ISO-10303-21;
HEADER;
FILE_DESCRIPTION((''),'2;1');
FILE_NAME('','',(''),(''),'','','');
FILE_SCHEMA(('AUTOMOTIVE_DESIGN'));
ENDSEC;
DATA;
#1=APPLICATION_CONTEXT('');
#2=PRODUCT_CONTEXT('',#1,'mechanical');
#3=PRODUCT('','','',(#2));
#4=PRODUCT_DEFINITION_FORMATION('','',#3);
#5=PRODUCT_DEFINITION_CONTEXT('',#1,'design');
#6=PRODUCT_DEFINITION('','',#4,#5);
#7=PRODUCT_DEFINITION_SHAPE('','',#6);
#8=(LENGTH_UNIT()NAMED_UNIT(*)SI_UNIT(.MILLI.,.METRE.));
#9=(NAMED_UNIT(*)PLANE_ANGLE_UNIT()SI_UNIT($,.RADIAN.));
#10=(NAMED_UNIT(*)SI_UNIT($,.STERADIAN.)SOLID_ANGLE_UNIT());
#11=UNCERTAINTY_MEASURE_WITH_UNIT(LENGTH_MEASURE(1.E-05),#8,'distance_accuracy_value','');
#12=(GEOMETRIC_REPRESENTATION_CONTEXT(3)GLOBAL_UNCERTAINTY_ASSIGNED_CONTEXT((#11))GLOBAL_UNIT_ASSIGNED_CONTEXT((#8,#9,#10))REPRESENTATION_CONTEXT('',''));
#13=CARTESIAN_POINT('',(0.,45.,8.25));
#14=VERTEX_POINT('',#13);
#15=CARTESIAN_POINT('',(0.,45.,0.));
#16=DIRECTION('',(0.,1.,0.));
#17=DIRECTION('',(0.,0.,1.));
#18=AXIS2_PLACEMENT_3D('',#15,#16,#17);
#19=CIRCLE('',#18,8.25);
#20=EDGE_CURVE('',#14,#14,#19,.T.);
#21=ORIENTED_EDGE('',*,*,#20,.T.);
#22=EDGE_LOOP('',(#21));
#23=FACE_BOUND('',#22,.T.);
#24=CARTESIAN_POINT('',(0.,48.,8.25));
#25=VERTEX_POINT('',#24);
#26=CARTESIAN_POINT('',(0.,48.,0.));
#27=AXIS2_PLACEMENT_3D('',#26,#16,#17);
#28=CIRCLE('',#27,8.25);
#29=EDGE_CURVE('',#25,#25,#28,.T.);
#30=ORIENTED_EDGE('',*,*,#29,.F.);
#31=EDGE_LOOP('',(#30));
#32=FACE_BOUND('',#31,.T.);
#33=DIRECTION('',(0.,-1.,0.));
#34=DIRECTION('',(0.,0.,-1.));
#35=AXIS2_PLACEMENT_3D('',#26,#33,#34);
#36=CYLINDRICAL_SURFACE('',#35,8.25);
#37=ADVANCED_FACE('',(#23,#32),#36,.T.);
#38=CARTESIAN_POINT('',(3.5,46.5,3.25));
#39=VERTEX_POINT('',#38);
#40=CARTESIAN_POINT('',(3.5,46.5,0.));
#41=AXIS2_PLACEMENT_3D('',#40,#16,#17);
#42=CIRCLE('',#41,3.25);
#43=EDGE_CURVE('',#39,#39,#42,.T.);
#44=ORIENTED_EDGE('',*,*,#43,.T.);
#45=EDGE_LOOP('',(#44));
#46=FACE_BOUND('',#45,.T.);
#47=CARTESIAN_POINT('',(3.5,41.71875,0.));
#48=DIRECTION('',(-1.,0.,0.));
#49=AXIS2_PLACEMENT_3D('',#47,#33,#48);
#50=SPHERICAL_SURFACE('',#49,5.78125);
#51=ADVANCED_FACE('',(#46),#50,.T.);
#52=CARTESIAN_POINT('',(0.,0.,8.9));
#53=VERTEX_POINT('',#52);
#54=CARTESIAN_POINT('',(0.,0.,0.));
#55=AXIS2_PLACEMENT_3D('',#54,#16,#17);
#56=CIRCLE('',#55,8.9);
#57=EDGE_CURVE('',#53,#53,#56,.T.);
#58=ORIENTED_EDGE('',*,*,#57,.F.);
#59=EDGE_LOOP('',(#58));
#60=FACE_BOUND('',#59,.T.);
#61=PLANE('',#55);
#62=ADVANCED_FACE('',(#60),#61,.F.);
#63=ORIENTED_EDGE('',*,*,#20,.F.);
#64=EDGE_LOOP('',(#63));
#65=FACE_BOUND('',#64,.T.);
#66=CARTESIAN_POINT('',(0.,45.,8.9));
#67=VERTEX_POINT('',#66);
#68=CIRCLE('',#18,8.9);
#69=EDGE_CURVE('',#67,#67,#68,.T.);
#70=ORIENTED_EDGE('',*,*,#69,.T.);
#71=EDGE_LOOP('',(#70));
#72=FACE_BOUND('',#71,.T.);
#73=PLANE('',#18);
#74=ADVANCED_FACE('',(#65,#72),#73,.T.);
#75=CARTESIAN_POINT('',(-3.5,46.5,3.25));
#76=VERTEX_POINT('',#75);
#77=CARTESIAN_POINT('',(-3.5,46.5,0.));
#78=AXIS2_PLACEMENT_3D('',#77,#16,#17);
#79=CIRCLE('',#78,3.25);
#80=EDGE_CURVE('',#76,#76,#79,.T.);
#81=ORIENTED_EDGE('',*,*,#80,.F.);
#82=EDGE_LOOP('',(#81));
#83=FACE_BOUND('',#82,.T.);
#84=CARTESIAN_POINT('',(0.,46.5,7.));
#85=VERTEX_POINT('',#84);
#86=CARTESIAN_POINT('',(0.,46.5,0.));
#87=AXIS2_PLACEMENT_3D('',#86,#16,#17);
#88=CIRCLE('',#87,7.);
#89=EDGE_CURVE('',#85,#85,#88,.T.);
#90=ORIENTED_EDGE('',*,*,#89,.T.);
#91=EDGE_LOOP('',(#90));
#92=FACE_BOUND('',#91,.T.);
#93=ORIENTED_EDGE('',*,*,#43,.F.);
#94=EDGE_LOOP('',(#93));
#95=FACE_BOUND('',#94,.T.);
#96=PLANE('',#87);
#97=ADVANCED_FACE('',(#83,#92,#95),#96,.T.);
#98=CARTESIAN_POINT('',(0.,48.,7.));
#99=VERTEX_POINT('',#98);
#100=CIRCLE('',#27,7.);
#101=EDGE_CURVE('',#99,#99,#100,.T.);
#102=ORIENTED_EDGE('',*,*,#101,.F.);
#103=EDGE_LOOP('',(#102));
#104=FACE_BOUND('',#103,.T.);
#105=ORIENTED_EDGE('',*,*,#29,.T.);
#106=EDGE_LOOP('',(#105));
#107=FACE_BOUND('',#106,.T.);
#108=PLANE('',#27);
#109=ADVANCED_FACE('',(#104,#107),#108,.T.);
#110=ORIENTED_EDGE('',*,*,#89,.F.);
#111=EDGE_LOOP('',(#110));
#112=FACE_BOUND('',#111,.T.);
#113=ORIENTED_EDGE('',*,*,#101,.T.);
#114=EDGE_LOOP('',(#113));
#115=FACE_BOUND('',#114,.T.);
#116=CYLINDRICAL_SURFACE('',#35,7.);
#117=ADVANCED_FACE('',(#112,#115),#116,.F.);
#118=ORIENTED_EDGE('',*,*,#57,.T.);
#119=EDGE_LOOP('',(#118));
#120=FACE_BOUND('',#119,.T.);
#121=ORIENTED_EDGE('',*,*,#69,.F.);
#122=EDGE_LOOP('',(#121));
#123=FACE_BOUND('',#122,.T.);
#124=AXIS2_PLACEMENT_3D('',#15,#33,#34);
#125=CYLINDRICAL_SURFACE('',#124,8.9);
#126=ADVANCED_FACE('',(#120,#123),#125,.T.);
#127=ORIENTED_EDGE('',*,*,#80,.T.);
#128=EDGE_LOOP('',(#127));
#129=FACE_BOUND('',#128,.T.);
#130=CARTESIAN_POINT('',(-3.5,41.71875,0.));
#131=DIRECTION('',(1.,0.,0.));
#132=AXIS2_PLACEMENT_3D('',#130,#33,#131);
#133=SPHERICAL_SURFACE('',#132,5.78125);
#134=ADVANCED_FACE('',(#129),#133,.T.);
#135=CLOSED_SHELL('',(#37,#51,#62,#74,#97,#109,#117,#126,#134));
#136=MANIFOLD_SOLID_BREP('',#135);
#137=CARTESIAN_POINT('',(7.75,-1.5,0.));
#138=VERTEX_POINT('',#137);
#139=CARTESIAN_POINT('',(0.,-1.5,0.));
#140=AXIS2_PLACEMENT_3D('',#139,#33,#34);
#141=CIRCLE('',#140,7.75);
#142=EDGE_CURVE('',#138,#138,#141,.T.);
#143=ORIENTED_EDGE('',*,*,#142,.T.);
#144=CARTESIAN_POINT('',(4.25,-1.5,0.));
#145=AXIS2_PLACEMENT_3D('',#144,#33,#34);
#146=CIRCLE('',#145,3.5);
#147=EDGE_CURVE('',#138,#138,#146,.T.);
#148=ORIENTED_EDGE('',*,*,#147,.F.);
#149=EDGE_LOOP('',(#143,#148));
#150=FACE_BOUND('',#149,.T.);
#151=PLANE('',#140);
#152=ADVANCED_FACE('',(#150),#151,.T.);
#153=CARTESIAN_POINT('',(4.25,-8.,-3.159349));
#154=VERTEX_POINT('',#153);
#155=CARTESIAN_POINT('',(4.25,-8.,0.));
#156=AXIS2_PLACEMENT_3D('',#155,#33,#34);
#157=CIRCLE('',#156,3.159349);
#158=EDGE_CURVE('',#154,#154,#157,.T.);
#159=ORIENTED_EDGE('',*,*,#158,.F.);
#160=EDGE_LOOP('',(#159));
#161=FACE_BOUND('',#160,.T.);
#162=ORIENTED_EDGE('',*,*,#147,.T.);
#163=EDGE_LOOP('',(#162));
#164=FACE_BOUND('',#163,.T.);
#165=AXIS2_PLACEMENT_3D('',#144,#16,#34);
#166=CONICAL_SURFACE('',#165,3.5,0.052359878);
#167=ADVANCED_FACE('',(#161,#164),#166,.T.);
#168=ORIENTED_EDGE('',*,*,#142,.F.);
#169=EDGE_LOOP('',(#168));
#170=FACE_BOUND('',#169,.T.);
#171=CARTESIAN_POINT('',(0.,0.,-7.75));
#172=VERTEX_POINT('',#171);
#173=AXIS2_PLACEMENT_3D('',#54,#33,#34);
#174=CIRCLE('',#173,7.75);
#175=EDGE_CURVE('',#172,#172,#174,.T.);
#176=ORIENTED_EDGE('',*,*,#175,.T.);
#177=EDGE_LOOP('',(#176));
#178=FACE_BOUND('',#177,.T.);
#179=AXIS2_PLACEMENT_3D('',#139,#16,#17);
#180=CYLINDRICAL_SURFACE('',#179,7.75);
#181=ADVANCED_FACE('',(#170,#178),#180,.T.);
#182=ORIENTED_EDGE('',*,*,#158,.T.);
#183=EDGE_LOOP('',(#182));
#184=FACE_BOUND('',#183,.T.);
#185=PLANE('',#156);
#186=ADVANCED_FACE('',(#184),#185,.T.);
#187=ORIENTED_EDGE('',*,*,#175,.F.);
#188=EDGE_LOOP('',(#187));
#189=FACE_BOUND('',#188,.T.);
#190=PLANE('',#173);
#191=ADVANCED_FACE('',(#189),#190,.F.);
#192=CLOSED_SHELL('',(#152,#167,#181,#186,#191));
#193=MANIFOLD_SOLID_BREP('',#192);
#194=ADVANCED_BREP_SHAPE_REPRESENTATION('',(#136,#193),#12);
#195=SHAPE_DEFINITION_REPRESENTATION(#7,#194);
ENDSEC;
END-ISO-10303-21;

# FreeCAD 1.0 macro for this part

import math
import FreeCAD as App
import Part
import Sketcher

V = App.Vector

doc = App.newDocument("Part")
params = doc.addObject("Spreadsheet::Sheet", "Params")
for row, (alias, value) in enumerate([
    ("sketch1_diameter", "17.8 mm"),
    ("pad1_length", "45 mm"),
    ("sketch2_diameter", "14 mm"),
    ("sketch2_diameter2", "16.5 mm"),
    ("pad2_length", "3 mm"),
    ("sketch3_diameter", "14 mm"),
    ("pad3_length", "1.5 mm"),
    ("sketch4_height", "1 mm"),
    ("sketch4_width", "3.25 mm"),
    ("revolution_angle", "360 deg"),
    ("sketch5_diameter", "15.5 mm"),
    ("pad4_length", "1.5 mm"),
    ("sketch6_diameter", "7 mm"),
    ("pad5_length", "6.5 mm"),
    ("pad5_taper", "-3 deg"),
], start=1):
    params.set(f"A{row}", alias)
    params.set(f"B{row}", "=" + value)
    params.setAlias(f"B{row}", alias)

body = doc.addObject("PartDesign::Body", "Body")

# Sketch on XZ plane
sketch1 = doc.addObject("Sketcher::SketchObject", "Sketch")
body.addObject(sketch1)
sketch1.AttachmentSupport = (doc.XZ_Plane, [""])
sketch1.MapMode = "FlatFace"
sketch1.addGeometry(Part.Circle(V(0, 0, 0), V(0, 0, 1), 8.9), False)
sketch1.addConstraint([
    Sketcher.Constraint("Coincident", 0, 3, -1, 1),
    Sketcher.Constraint("Diameter", 0, 17.8),
])
sketch1.setExpression("Constraints[1]", "Params.sketch1_diameter")
pad1 = doc.addObject("PartDesign::Pad", "Pad")
body.addObject(pad1)
pad1.Profile = sketch1
pad1.setExpression("Length", "Params.pad1_length")
pad1.Reversed = True

# Sketch on XZ plane
sketch2 = doc.addObject("Sketcher::SketchObject", "Sketch001")
body.addObject(sketch2)
sketch2.AttachmentSupport = (doc.XZ_Plane, [""])
sketch2.MapMode = "FlatFace"
sketch2.AttachmentOffset = App.Placement(V(0, 0, -45), App.Rotation())
sketch2.addGeometry([
    Part.Circle(V(0, 0, 0), V(0, 0, 1), 8.25),
    Part.Circle(V(0, 0, 0), V(0, 0, 1), 7),
], False)
sketch2.addConstraint([
    Sketcher.Constraint("Coincident", 0, 3, -1, 1),
    Sketcher.Constraint("Coincident", 1, 3, -1, 1),
    Sketcher.Constraint("Diameter", 1, 14.0),
    Sketcher.Constraint("Diameter", 0, 16.5),
])
sketch2.setExpression("Constraints[2]", "Params.sketch2_diameter")
sketch2.setExpression("Constraints[3]", "Params.sketch2_diameter2")
pad2 = doc.addObject("PartDesign::Pad", "Pad001")
body.addObject(pad2)
pad2.Profile = sketch2
pad2.setExpression("Length", "Params.pad2_length")
pad2.Reversed = True

# Sketch on XZ plane
sketch3 = doc.addObject("Sketcher::SketchObject", "Sketch002")
body.addObject(sketch3)
sketch3.AttachmentSupport = (doc.XZ_Plane, [""])
sketch3.MapMode = "FlatFace"
sketch3.AttachmentOffset = App.Placement(V(0, 0, -45), App.Rotation())
sketch3.addGeometry(Part.Circle(V(0, 0, 0), V(0, 0, 1), 7), False)
sketch3.addConstraint([
    Sketcher.Constraint("Coincident", 0, 3, -1, 1),
    Sketcher.Constraint("Diameter", 0, 14.0),
])
sketch3.setExpression("Constraints[1]", "Params.sketch3_diameter")
pad3 = doc.addObject("PartDesign::Pad", "Pad002")
body.addObject(pad3)
pad3.Profile = sketch3
pad3.setExpression("Length", "Params.pad3_length")
pad3.Reversed = True

# Sketch on XY plane
sketch4 = doc.addObject("Sketcher::SketchObject", "Sketch003")
body.addObject(sketch4)
sketch4.AttachmentSupport = (doc.XY_Plane, [""])
sketch4.MapMode = "FlatFace"
sketch4.addGeometry([
    Part.LineSegment(V(-3.5, 47.5, 0), V(-3.5, 46.5, 0)),
    Part.LineSegment(V(-3.5, 46.5, 0), V(-0.25, 46.5, 0)),
    Part.ArcOfCircle(Part.Circle(V(-3.5, 41.71875, 0), V(0, 0, 1), 5.78125), math.radians(55.794542), math.radians(90)),
], False)
sketch4.addGeometry(Part.LineSegment(V(-3.5, 41.71875, 0), V(-3.5, 47.5, 0)), True)  # axis
sketch4.addConstraint([
    Sketcher.Constraint("Coincident", 0, 2, 1, 1),
    Sketcher.Constraint("Coincident", 1, 2, 2, 1),
    Sketcher.Constraint("Coincident", 2, 2, 0, 1),
    Sketcher.Constraint("Vertical", 0),
    Sketcher.Constraint("Horizontal", 1),
    Sketcher.Constraint("Vertical", 3),
    Sketcher.Constraint("Coincident", 3, 1, 2, 3),
    Sketcher.Constraint("Coincident", 3, 2, 2, 2),
    Sketcher.Constraint("DistanceY", 0, 2, 0, 1, 1.0),
    Sketcher.Constraint("DistanceX", 1, 1, 1, 2, 3.25),
    Sketcher.Constraint("DistanceX", 2, 3, -1, 1, 3.5),
    Sketcher.Constraint("DistanceY", -1, 1, 0, 2, 46.5),
])
sketch4.setExpression("Constraints[8]", "Params.sketch4_height")
sketch4.setExpression("Constraints[9]", "Params.sketch4_width")
revolution = doc.addObject("PartDesign::Revolution", "Revolution")
body.addObject(revolution)
revolution.Profile = sketch4
revolution.ReferenceAxis = (sketch4, ["Axis0"])
revolution.setExpression("Angle", "Params.revolution_angle")
doc.recompute()

mirrored = doc.addObject("PartDesign::Mirrored", "Mirrored")
body.addObject(mirrored)
mirrored.Originals = [revolution]
mirrored.MirrorPlane = (doc.YZ_Plane, [""])
body.Tip = mirrored
body2 = doc.addObject("PartDesign::Body", "Body001")

# Sketch on XZ plane
sketch5 = doc.addObject("Sketcher::SketchObject", "Sketch004")
body2.addObject(sketch5)
sketch5.AttachmentSupport = (doc.getObject("XZ_Plane001"), [""])
sketch5.MapMode = "FlatFace"
sketch5.addGeometry(Part.Circle(V(0, 0, 0), V(0, 0, 1), 7.75), False)
sketch5.addConstraint([
    Sketcher.Constraint("Coincident", 0, 3, -1, 1),
    Sketcher.Constraint("Diameter", 0, 15.5),
])
sketch5.setExpression("Constraints[1]", "Params.sketch5_diameter")
pad4 = doc.addObject("PartDesign::Pad", "Pad003")
body2.addObject(pad4)
pad4.Profile = sketch5
pad4.setExpression("Length", "Params.pad4_length")

# Sketch on XZ plane
sketch6 = doc.addObject("Sketcher::SketchObject", "Sketch005")
body2.addObject(sketch6)
sketch6.AttachmentSupport = (doc.getObject("XZ_Plane001"), [""])
sketch6.MapMode = "FlatFace"
sketch6.AttachmentOffset = App.Placement(V(0, 0, 1.5), App.Rotation())
sketch6.addGeometry(Part.Circle(V(4.25, 0, 0), V(0, 0, 1), 3.5), False)
sketch6.addConstraint([
    Sketcher.Constraint("PointOnObject", 0, 3, -1),
    Sketcher.Constraint("Diameter", 0, 7.0),
    Sketcher.Constraint("DistanceX", -1, 1, 0, 3, 4.25),
])
sketch6.setExpression("Constraints[1]", "Params.sketch6_diameter")
pad5 = doc.addObject("PartDesign::Pad", "Pad004")
body2.addObject(pad5)
pad5.Profile = sketch6
pad5.setExpression("Length", "Params.pad5_length")
pad5.setExpression("TaperAngle", "Params.pad5_taper")

doc.recompute()
